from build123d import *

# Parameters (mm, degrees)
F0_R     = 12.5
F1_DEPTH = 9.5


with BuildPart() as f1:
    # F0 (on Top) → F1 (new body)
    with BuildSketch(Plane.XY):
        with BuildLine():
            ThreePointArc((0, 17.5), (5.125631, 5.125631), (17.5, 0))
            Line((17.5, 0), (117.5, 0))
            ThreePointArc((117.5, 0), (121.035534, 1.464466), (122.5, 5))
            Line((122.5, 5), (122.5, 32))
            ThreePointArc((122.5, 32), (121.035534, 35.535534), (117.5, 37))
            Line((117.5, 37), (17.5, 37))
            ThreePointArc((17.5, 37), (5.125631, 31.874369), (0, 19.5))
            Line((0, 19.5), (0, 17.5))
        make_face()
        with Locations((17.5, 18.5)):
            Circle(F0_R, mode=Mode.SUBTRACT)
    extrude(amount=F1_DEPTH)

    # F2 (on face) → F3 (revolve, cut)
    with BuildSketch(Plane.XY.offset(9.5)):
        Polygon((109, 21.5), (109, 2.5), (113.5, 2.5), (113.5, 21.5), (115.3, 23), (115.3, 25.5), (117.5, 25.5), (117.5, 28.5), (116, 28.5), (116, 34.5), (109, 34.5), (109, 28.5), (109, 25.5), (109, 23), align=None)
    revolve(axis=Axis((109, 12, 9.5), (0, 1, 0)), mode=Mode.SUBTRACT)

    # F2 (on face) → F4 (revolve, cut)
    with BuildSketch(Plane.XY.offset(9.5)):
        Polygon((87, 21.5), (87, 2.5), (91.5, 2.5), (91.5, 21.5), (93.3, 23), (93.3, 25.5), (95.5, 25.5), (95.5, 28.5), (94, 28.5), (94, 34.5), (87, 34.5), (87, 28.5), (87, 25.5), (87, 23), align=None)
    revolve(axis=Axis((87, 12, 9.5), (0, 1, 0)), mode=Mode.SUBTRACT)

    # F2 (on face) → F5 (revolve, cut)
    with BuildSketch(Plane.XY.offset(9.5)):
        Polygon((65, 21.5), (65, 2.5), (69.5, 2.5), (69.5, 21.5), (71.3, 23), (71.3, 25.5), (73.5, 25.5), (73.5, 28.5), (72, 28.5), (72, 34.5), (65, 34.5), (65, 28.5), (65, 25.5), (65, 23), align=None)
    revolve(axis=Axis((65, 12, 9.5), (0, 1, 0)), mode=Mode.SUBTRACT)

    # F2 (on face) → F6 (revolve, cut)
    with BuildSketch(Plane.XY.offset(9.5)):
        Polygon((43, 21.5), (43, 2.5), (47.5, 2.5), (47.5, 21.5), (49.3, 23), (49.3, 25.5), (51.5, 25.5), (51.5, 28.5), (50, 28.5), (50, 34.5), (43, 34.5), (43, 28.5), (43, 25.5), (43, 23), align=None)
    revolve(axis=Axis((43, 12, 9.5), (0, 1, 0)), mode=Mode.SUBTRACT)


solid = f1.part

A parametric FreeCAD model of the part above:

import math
import FreeCAD as App
import Part
import Sketcher

V = App.Vector
Q = App.Units.Quantity

doc = App.newDocument("Part")
body = doc.addObject("PartDesign::Body", "Body")

# Sketch on XY plane
sketch1 = body.newObject("Sketcher::SketchObject", "Sketch")
sketch1.AttachmentSupport = (doc.getObject("XY_Plane"), [""])
sketch1.MapMode = "FlatFace"
sketch1.addGeometry(Part.ArcOfCircle(Part.Circle(V(17.5, 17.5, 0), V(0, 0, 1), 17.5), math.radians(180), math.radians(270)), False)
sketch1.addGeometry(Part.LineSegment(V(17.5, 0, 0), V(117.5, 0, 0)), False)
sketch1.addGeometry(Part.ArcOfCircle(Part.Circle(V(117.5, 5, 0), V(0, 0, 1), 5), math.radians(-90), math.radians(0)), False)
sketch1.addGeometry(Part.LineSegment(V(122.5, 5, 0), V(122.5, 32, 0)), False)
sketch1.addGeometry(Part.ArcOfCircle(Part.Circle(V(117.5, 32, 0), V(0, 0, 1), 5), math.radians(0), math.radians(90)), False)
sketch1.addGeometry(Part.LineSegment(V(117.5, 37, 0), V(17.5, 37, 0)), False)
sketch1.addGeometry(Part.ArcOfCircle(Part.Circle(V(17.5, 19.5, 0), V(0, 0, 1), 17.5), math.radians(90), math.radians(180)), False)
sketch1.addGeometry(Part.LineSegment(V(0, 19.5, 0), V(0, 17.5, 0)), False)
sketch1.addGeometry(Part.Circle(V(17.5, 18.5, 0), V(0, 0, 1), 12.5), False)
sketch1.addConstraint(Sketcher.Constraint("Tangent", 0, 2, 1, 1))
sketch1.addConstraint(Sketcher.Constraint("Tangent", 1, 2, 2, 1))
sketch1.addConstraint(Sketcher.Constraint("Tangent", 2, 2, 3, 1))
sketch1.addConstraint(Sketcher.Constraint("Tangent", 3, 2, 4, 1))
sketch1.addConstraint(Sketcher.Constraint("Tangent", 4, 2, 5, 1))
sketch1.addConstraint(Sketcher.Constraint("Tangent", 5, 2, 6, 1))
sketch1.addConstraint(Sketcher.Constraint("Tangent", 6, 2, 7, 1))
sketch1.addConstraint(Sketcher.Constraint("Tangent", 7, 2, 0, 1))
sketch1.addConstraint(Sketcher.Constraint("Horizontal", 1))
sketch1.addConstraint(Sketcher.Constraint("Vertical", 3))
sketch1.addConstraint(Sketcher.Constraint("Horizontal", 5))
sketch1.addConstraint(Sketcher.Constraint("Vertical", 7))
sketch1.addConstraint(Sketcher.Constraint("Equal", 2, 4))
sketch1.addConstraint(Sketcher.Constraint("Equal", 0, 6))
sketch1.addConstraint(Sketcher.Constraint("PointOnObject", 0, 2, -1))
sketch1.addConstraint(Sketcher.Constraint("PointOnObject", 6, 2, -2))
sketch1.addConstraint(Sketcher.Constraint("Vertical", 6, 3, 8, 3))
sketch1.addConstraint(Sketcher.Constraint("Diameter", 8, Q("25 mm")))
sketch1.addConstraint(Sketcher.Constraint("Radius", 2, Q("5 mm")))
sketch1.addConstraint(Sketcher.Constraint("Radius", 0, Q("17.499999 mm")))
sketch1.addConstraint(Sketcher.Constraint("DistanceX", 1, 1, 1, 2, Q("100 mm")))
sketch1.addConstraint(Sketcher.Constraint("DistanceY", 3, 1, 3, 2, Q("27 mm")))
sketch1.addConstraint(Sketcher.Constraint("DistanceY", 0, 3, 8, 3, Q("1.000001 mm")))
pad1 = body.newObject("PartDesign::Pad", "Pad")
pad1.Profile = sketch1
pad1.Length = 9.5

# Sketch on XY plane
sketch2 = body.newObject("Sketcher::SketchObject", "Sketch001")
sketch2.AttachmentSupport = (doc.getObject("XY_Plane"), [""])
sketch2.MapMode = "FlatFace"
sketch2.AttachmentOffset = App.Placement(V(0, 0, 9.5), App.Rotation())
sketch2.addGeometry(Part.LineSegment(V(109, 2.5, 0), V(113.5, 2.5, 0)), False)
sketch2.addGeometry(Part.LineSegment(V(113.5, 2.5, 0), V(113.5, 21.5, 0)), False)
sketch2.addGeometry(Part.LineSegment(V(113.5, 21.5, 0), V(115.3, 23, 0)), False)
sketch2.addGeometry(Part.LineSegment(V(115.3, 23, 0), V(115.3, 25.5, 0)), False)
sketch2.addGeometry(Part.LineSegment(V(115.3, 25.5, 0), V(117.5, 25.5, 0)), False)
sketch2.addGeometry(Part.LineSegment(V(117.5, 25.5, 0), V(117.5, 28.5, 0)), False)
sketch2.addGeometry(Part.LineSegment(V(117.5, 28.5, 0), V(116, 28.5, 0)), False)
sketch2.addGeometry(Part.LineSegment(V(116, 28.5, 0), V(116, 34.5, 0)), False)
sketch2.addGeometry(Part.LineSegment(V(116, 34.5, 0), V(109, 34.5, 0)), False)
sketch2.addGeometry(Part.LineSegment(V(109, 34.5, 0), V(109, 2.5, 0)), False)
sketch2.addGeometry(Part.LineSegment(V(109, 2.5, 0), V(109, 34.5, 0)), True)  # axis
sketch2.addConstraint(Sketcher.Constraint("Coincident", 0, 2, 1, 1))
sketch2.addConstraint(Sketcher.Constraint("Coincident", 1, 2, 2, 1))
sketch2.addConstraint(Sketcher.Constraint("Coincident", 2, 2, 3, 1))
sketch2.addConstraint(Sketcher.Constraint("Coincident", 3, 2, 4, 1))
sketch2.addConstraint(Sketcher.Constraint("Coincident", 4, 2, 5, 1))
sketch2.addConstraint(Sketcher.Constraint("Coincident", 5, 2, 6, 1))
sketch2.addConstraint(Sketcher.Constraint("Coincident", 6, 2, 7, 1))
sketch2.addConstraint(Sketcher.Constraint("Coincident", 7, 2, 8, 1))
sketch2.addConstraint(Sketcher.Constraint("Coincident", 8, 2, 9, 1))
sketch2.addConstraint(Sketcher.Constraint("Coincident", 9, 2, 0, 1))
sketch2.addConstraint(Sketcher.Constraint("Horizontal", 0))
sketch2.addConstraint(Sketcher.Constraint("Vertical", 1))
sketch2.addConstraint(Sketcher.Constraint("Vertical", 3))
sketch2.addConstraint(Sketcher.Constraint("Horizontal", 4))
sketch2.addConstraint(Sketcher.Constraint("Vertical", 5))
sketch2.addConstraint(Sketcher.Constraint("Horizontal", 6))
sketch2.addConstraint(Sketcher.Constraint("Vertical", 7))
sketch2.addConstraint(Sketcher.Constraint("Horizontal", 8))
sketch2.addConstraint(Sketcher.Constraint("Vertical", 9))
sketch2.addConstraint(Sketcher.Constraint("Vertical", 10))
sketch2.addConstraint(Sketcher.Constraint("Coincident", 10, 1, 9, 2))
sketch2.addConstraint(Sketcher.Constraint("Horizontal", 7, 2, 10, 2))
sketch2.addConstraint(Sketcher.Constraint("DistanceX", 8, 2, 8, 1, Q("7 mm")))
sketch2.addConstraint(Sketcher.Constraint("DistanceY", 1, 1, 1, 2, Q("19 mm")))
sketch2.addConstraint(Sketcher.Constraint("DistanceY", 5, 1, 5, 2, Q("3 mm")))
sketch2.addConstraint(Sketcher.Constraint("DistanceY", 7, 1, 7, 2, Q("6 mm")))
sketch2.addConstraint(Sketcher.Constraint("DistanceY", 9, 2, 9, 1, Q("32 mm")))
sketch2.addConstraint(Sketcher.Constraint("DistanceX", 0, 1, 0, 2, Q("4.5 mm")))
sketch2.addConstraint(Sketcher.Constraint("DistanceX", 4, 1, 4, 2, Q("2.2 mm")))
sketch2.addConstraint(Sketcher.Constraint("DistanceX", 6, 2, 6, 1, Q("1.5 mm")))
sketch2.addConstraint(Sketcher.Constraint("DistanceY", 3, 1, 3, 2, Q("2.5 mm")))
sketch2.addConstraint(Sketcher.Constraint("DistanceY", -1, 1, 2, 2, Q("23 mm")))
sketch2.addConstraint(Sketcher.Constraint("DistanceX", -1, 1, 6, 2, Q("116 mm")))
groove = body.newObject("PartDesign::Groove", "Groove")
groove.Profile = sketch2
groove.ReferenceAxis = (sketch2, ["Axis0"])
groove.Angle = 360

# Sketch on XY plane
sketch3 = body.newObject("Sketcher::SketchObject", "Sketch002")
sketch3.AttachmentSupport = (doc.getObject("XY_Plane"), [""])
sketch3.MapMode = "FlatFace"
sketch3.AttachmentOffset = App.Placement(V(0, 0, 9.5), App.Rotation())
sketch3.addGeometry(Part.LineSegment(V(87, 2.5, 0), V(91.5, 2.5, 0)), False)
sketch3.addGeometry(Part.LineSegment(V(91.5, 2.5, 0), V(91.5, 21.5, 0)), False)
sketch3.addGeometry(Part.LineSegment(V(91.5, 21.5, 0), V(93.3, 23, 0)), False)
sketch3.addGeometry(Part.LineSegment(V(93.3, 23, 0), V(93.3, 25.5, 0)), False)
sketch3.addGeometry(Part.LineSegment(V(93.3, 25.5, 0), V(95.5, 25.5, 0)), False)
sketch3.addGeometry(Part.LineSegment(V(95.5, 25.5, 0), V(95.5, 28.5, 0)), False)
sketch3.addGeometry(Part.LineSegment(V(95.5, 28.5, 0), V(94, 28.5, 0)), False)
sketch3.addGeometry(Part.LineSegment(V(94, 28.5, 0), V(94, 34.5, 0)), False)
sketch3.addGeometry(Part.LineSegment(V(94, 34.5, 0), V(87, 34.5, 0)), False)
sketch3.addGeometry(Part.LineSegment(V(87, 34.5, 0), V(87, 2.5, 0)), False)
sketch3.addGeometry(Part.LineSegment(V(87, 2.5, 0), V(87, 34.5, 0)), True)  # axis
sketch3.addConstraint(Sketcher.Constraint("Coincident", 0, 2, 1, 1))
sketch3.addConstraint(Sketcher.Constraint("Coincident", 1, 2, 2, 1))
sketch3.addConstraint(Sketcher.Constraint("Coincident", 2, 2, 3, 1))
sketch3.addConstraint(Sketcher.Constraint("Coincident", 3, 2, 4, 1))
sketch3.addConstraint(Sketcher.Constraint("Coincident", 4, 2, 5, 1))
sketch3.addConstraint(Sketcher.Constraint("Coincident", 5, 2, 6, 1))
sketch3.addConstraint(Sketcher.Constraint("Coincident", 6, 2, 7, 1))
sketch3.addConstraint(Sketcher.Constraint("Coincident", 7, 2, 8, 1))
sketch3.addConstraint(Sketcher.Constraint("Coincident", 8, 2, 9, 1))
sketch3.addConstraint(Sketcher.Constraint("Coincident", 9, 2, 0, 1))
sketch3.addConstraint(Sketcher.Constraint("Horizontal", 0))
sketch3.addConstraint(Sketcher.Constraint("Vertical", 1))
sketch3.addConstraint(Sketcher.Constraint("Vertical", 3))
sketch3.addConstraint(Sketcher.Constraint("Horizontal", 4))
sketch3.addConstraint(Sketcher.Constraint("Vertical", 5))
sketch3.addConstraint(Sketcher.Constraint("Horizontal", 6))
sketch3.addConstraint(Sketcher.Constraint("Vertical", 7))
sketch3.addConstraint(Sketcher.Constraint("Horizontal", 8))
sketch3.addConstraint(Sketcher.Constraint("Vertical", 9))
sketch3.addConstraint(Sketcher.Constraint("Vertical", 10))
sketch3.addConstraint(Sketcher.Constraint("Coincident", 10, 1, 9, 2))
sketch3.addConstraint(Sketcher.Constraint("Horizontal", 7, 2, 10, 2))
sketch3.addConstraint(Sketcher.Constraint("DistanceX", 8, 2, 8, 1, Q("7 mm")))
sketch3.addConstraint(Sketcher.Constraint("DistanceY", 1, 1, 1, 2, Q("19 mm")))
sketch3.addConstraint(Sketcher.Constraint("DistanceY", 5, 1, 5, 2, Q("3 mm")))
sketch3.addConstraint(Sketcher.Constraint("DistanceY", 7, 1, 7, 2, Q("6 mm")))
sketch3.addConstraint(Sketcher.Constraint("DistanceY", 9, 2, 9, 1, Q("32 mm")))
sketch3.addConstraint(Sketcher.Constraint("DistanceX", 0, 1, 0, 2, Q("4.5 mm")))
sketch3.addConstraint(Sketcher.Constraint("DistanceX", 4, 1, 4, 2, Q("2.2 mm")))
sketch3.addConstraint(Sketcher.Constraint("DistanceX", 6, 2, 6, 1, Q("1.5 mm")))
sketch3.addConstraint(Sketcher.Constraint("DistanceY", 3, 1, 3, 2, Q("2.5 mm")))
sketch3.addConstraint(Sketcher.Constraint("DistanceY", -1, 1, 2, 2, Q("23 mm")))
sketch3.addConstraint(Sketcher.Constraint("DistanceX", -1, 1, 6, 2, Q("94 mm")))
groove2 = body.newObject("PartDesign::Groove", "Groove001")
groove2.Profile = sketch3
groove2.ReferenceAxis = (sketch3, ["Axis0"])
groove2.Angle = 360

# Sketch on XY plane
sketch4 = body.newObject("Sketcher::SketchObject", "Sketch003")
sketch4.AttachmentSupport = (doc.getObject("XY_Plane"), [""])
sketch4.MapMode = "FlatFace"
sketch4.AttachmentOffset = App.Placement(V(0, 0, 9.5), App.Rotation())
sketch4.addGeometry(Part.LineSegment(V(65, 2.5, 0), V(69.5, 2.5, 0)), False)
sketch4.addGeometry(Part.LineSegment(V(69.5, 2.5, 0), V(69.5, 21.5, 0)), False)
sketch4.addGeometry(Part.LineSegment(V(69.5, 21.5, 0), V(71.3, 23, 0)), False)
sketch4.addGeometry(Part.LineSegment(V(71.3, 23, 0), V(71.3, 25.5, 0)), False)
sketch4.addGeometry(Part.LineSegment(V(71.3, 25.5, 0), V(73.5, 25.5, 0)), False)
sketch4.addGeometry(Part.LineSegment(V(73.5, 25.5, 0), V(73.5, 28.5, 0)), False)
sketch4.addGeometry(Part.LineSegment(V(73.5, 28.5, 0), V(72, 28.5, 0)), False)
sketch4.addGeometry(Part.LineSegment(V(72, 28.5, 0), V(72, 34.5, 0)), False)
sketch4.addGeometry(Part.LineSegment(V(72, 34.5, 0), V(65, 34.5, 0)), False)
sketch4.addGeometry(Part.LineSegment(V(65, 34.5, 0), V(65, 2.5, 0)), False)
sketch4.addGeometry(Part.LineSegment(V(65, 2.5, 0), V(65, 34.5, 0)), True)  # axis
sketch4.addConstraint(Sketcher.Constraint("Coincident", 0, 2, 1, 1))
sketch4.addConstraint(Sketcher.Constraint("Coincident", 1, 2, 2, 1))
sketch4.addConstraint(Sketcher.Constraint("Coincident", 2, 2, 3, 1))
sketch4.addConstraint(Sketcher.Constraint("Coincident", 3, 2, 4, 1))
sketch4.addConstraint(Sketcher.Constraint("Coincident", 4, 2, 5, 1))
sketch4.addConstraint(Sketcher.Constraint("Coincident", 5, 2, 6, 1))
sketch4.addConstraint(Sketcher.Constraint("Coincident", 6, 2, 7, 1))
sketch4.addConstraint(Sketcher.Constraint("Coincident", 7, 2, 8, 1))
sketch4.addConstraint(Sketcher.Constraint("Coincident", 8, 2, 9, 1))
sketch4.addConstraint(Sketcher.Constraint("Coincident", 9, 2, 0, 1))
sketch4.addConstraint(Sketcher.Constraint("Horizontal", 0))
sketch4.addConstraint(Sketcher.Constraint("Vertical", 1))
sketch4.addConstraint(Sketcher.Constraint("Vertical", 3))
sketch4.addConstraint(Sketcher.Constraint("Horizontal", 4))
sketch4.addConstraint(Sketcher.Constraint("Vertical", 5))
sketch4.addConstraint(Sketcher.Constraint("Horizontal", 6))
sketch4.addConstraint(Sketcher.Constraint("Vertical", 7))
sketch4.addConstraint(Sketcher.Constraint("Horizontal", 8))
sketch4.addConstraint(Sketcher.Constraint("Vertical", 9))
sketch4.addConstraint(Sketcher.Constraint("Vertical", 10))
sketch4.addConstraint(Sketcher.Constraint("Coincident", 10, 1, 9, 2))
sketch4.addConstraint(Sketcher.Constraint("Horizontal", 7, 2, 10, 2))
sketch4.addConstraint(Sketcher.Constraint("DistanceX", 8, 2, 8, 1, Q("7 mm")))
sketch4.addConstraint(Sketcher.Constraint("DistanceY", 1, 1, 1, 2, Q("19 mm")))
sketch4.addConstraint(Sketcher.Constraint("DistanceY", 5, 1, 5, 2, Q("3 mm")))
sketch4.addConstraint(Sketcher.Constraint("DistanceY", 7, 1, 7, 2, Q("6 mm")))
sketch4.addConstraint(Sketcher.Constraint("DistanceY", 9, 2, 9, 1, Q("32 mm")))
sketch4.addConstraint(Sketcher.Constraint("DistanceX", 0, 1, 0, 2, Q("4.5 mm")))
sketch4.addConstraint(Sketcher.Constraint("DistanceX", 4, 1, 4, 2, Q("2.2 mm")))
sketch4.addConstraint(Sketcher.Constraint("DistanceX", 6, 2, 6, 1, Q("1.5 mm")))
sketch4.addConstraint(Sketcher.Constraint("DistanceY", 3, 1, 3, 2, Q("2.5 mm")))
sketch4.addConstraint(Sketcher.Constraint("DistanceY", -1, 1, 2, 2, Q("23 mm")))
sketch4.addConstraint(Sketcher.Constraint("DistanceX", -1, 1, 6, 2, Q("72 mm")))
groove3 = body.newObject("PartDesign::Groove", "Groove002")
groove3.Profile = sketch4
groove3.ReferenceAxis = (sketch4, ["Axis0"])
groove3.Angle = 360

# Sketch on XY plane
sketch5 = body.newObject("Sketcher::SketchObject", "Sketch004")
sketch5.AttachmentSupport = (doc.getObject("XY_Plane"), [""])
sketch5.MapMode = "FlatFace"
sketch5.AttachmentOffset = App.Placement(V(0, 0, 9.5), App.Rotation())
sketch5.addGeometry(Part.LineSegment(V(43, 2.5, 0), V(47.5, 2.5, 0)), False)
sketch5.addGeometry(Part.LineSegment(V(47.5, 2.5, 0), V(47.5, 21.5, 0)), False)
sketch5.addGeometry(Part.LineSegment(V(47.5, 21.5, 0), V(49.3, 23, 0)), False)
sketch5.addGeometry(Part.LineSegment(V(49.3, 23, 0), V(49.3, 25.5, 0)), False)
sketch5.addGeometry(Part.LineSegment(V(49.3, 25.5, 0), V(51.5, 25.5, 0)), False)
sketch5.addGeometry(Part.LineSegment(V(51.5, 25.5, 0), V(51.5, 28.5, 0)), False)
sketch5.addGeometry(Part.LineSegment(V(51.5, 28.5, 0), V(50, 28.5, 0)), False)
sketch5.addGeometry(Part.LineSegment(V(50, 28.5, 0), V(50, 34.5, 0)), False)
sketch5.addGeometry(Part.LineSegment(V(50, 34.5, 0), V(43, 34.5, 0)), False)
sketch5.addGeometry(Part.LineSegment(V(43, 34.5, 0), V(43, 2.5, 0)), False)
sketch5.addGeometry(Part.LineSegment(V(43, 2.5, 0), V(43, 34.5, 0)), True)  # axis
sketch5.addConstraint(Sketcher.Constraint("Coincident", 0, 2, 1, 1))
sketch5.addConstraint(Sketcher.Constraint("Coincident", 1, 2, 2, 1))
sketch5.addConstraint(Sketcher.Constraint("Coincident", 2, 2, 3, 1))
sketch5.addConstraint(Sketcher.Constraint("Coincident", 3, 2, 4, 1))
sketch5.addConstraint(Sketcher.Constraint("Coincident", 4, 2, 5, 1))
sketch5.addConstraint(Sketcher.Constraint("Coincident", 5, 2, 6, 1))
sketch5.addConstraint(Sketcher.Constraint("Coincident", 6, 2, 7, 1))
sketch5.addConstraint(Sketcher.Constraint("Coincident", 7, 2, 8, 1))
sketch5.addConstraint(Sketcher.Constraint("Coincident", 8, 2, 9, 1))
sketch5.addConstraint(Sketcher.Constraint("Coincident", 9, 2, 0, 1))
sketch5.addConstraint(Sketcher.Constraint("Horizontal", 0))
sketch5.addConstraint(Sketcher.Constraint("Vertical", 1))
sketch5.addConstraint(Sketcher.Constraint("Vertical", 3))
sketch5.addConstraint(Sketcher.Constraint("Horizontal", 4))
sketch5.addConstraint(Sketcher.Constraint("Vertical", 5))
sketch5.addConstraint(Sketcher.Constraint("Horizontal", 6))
sketch5.addConstraint(Sketcher.Constraint("Vertical", 7))
sketch5.addConstraint(Sketcher.Constraint("Horizontal", 8))
sketch5.addConstraint(Sketcher.Constraint("Vertical", 9))
sketch5.addConstraint(Sketcher.Constraint("Vertical", 10))
sketch5.addConstraint(Sketcher.Constraint("Coincident", 10, 1, 9, 2))
sketch5.addConstraint(Sketcher.Constraint("Horizontal", 7, 2, 10, 2))
sketch5.addConstraint(Sketcher.Constraint("DistanceX", 8, 2, 8, 1, Q("7 mm")))
sketch5.addConstraint(Sketcher.Constraint("DistanceY", 1, 1, 1, 2, Q("19 mm")))
sketch5.addConstraint(Sketcher.Constraint("DistanceY", 5, 1, 5, 2, Q("3 mm")))
sketch5.addConstraint(Sketcher.Constraint("DistanceY", 7, 1, 7, 2, Q("6 mm")))
sketch5.addConstraint(Sketcher.Constraint("DistanceY", 9, 2, 9, 1, Q("32 mm")))
sketch5.addConstraint(Sketcher.Constraint("DistanceX", 0, 1, 0, 2, Q("4.5 mm")))
sketch5.addConstraint(Sketcher.Constraint("DistanceX", 4, 1, 4, 2, Q("2.2 mm")))
sketch5.addConstraint(Sketcher.Constraint("DistanceX", 6, 2, 6, 1, Q("1.5 mm")))
sketch5.addConstraint(Sketcher.Constraint("DistanceY", 3, 1, 3, 2, Q("2.5 mm")))
sketch5.addConstraint(Sketcher.Constraint("DistanceY", -1, 1, 2, 2, Q("23 mm")))
sketch5.addConstraint(Sketcher.Constraint("DistanceX", -1, 1, 6, 2, Q("50 mm")))
groove4 = body.newObject("PartDesign::Groove", "Groove003")
groove4.Profile = sketch5
groove4.ReferenceAxis = (sketch5, ["Axis0"])
groove4.Angle = 360

doc.recompute()
